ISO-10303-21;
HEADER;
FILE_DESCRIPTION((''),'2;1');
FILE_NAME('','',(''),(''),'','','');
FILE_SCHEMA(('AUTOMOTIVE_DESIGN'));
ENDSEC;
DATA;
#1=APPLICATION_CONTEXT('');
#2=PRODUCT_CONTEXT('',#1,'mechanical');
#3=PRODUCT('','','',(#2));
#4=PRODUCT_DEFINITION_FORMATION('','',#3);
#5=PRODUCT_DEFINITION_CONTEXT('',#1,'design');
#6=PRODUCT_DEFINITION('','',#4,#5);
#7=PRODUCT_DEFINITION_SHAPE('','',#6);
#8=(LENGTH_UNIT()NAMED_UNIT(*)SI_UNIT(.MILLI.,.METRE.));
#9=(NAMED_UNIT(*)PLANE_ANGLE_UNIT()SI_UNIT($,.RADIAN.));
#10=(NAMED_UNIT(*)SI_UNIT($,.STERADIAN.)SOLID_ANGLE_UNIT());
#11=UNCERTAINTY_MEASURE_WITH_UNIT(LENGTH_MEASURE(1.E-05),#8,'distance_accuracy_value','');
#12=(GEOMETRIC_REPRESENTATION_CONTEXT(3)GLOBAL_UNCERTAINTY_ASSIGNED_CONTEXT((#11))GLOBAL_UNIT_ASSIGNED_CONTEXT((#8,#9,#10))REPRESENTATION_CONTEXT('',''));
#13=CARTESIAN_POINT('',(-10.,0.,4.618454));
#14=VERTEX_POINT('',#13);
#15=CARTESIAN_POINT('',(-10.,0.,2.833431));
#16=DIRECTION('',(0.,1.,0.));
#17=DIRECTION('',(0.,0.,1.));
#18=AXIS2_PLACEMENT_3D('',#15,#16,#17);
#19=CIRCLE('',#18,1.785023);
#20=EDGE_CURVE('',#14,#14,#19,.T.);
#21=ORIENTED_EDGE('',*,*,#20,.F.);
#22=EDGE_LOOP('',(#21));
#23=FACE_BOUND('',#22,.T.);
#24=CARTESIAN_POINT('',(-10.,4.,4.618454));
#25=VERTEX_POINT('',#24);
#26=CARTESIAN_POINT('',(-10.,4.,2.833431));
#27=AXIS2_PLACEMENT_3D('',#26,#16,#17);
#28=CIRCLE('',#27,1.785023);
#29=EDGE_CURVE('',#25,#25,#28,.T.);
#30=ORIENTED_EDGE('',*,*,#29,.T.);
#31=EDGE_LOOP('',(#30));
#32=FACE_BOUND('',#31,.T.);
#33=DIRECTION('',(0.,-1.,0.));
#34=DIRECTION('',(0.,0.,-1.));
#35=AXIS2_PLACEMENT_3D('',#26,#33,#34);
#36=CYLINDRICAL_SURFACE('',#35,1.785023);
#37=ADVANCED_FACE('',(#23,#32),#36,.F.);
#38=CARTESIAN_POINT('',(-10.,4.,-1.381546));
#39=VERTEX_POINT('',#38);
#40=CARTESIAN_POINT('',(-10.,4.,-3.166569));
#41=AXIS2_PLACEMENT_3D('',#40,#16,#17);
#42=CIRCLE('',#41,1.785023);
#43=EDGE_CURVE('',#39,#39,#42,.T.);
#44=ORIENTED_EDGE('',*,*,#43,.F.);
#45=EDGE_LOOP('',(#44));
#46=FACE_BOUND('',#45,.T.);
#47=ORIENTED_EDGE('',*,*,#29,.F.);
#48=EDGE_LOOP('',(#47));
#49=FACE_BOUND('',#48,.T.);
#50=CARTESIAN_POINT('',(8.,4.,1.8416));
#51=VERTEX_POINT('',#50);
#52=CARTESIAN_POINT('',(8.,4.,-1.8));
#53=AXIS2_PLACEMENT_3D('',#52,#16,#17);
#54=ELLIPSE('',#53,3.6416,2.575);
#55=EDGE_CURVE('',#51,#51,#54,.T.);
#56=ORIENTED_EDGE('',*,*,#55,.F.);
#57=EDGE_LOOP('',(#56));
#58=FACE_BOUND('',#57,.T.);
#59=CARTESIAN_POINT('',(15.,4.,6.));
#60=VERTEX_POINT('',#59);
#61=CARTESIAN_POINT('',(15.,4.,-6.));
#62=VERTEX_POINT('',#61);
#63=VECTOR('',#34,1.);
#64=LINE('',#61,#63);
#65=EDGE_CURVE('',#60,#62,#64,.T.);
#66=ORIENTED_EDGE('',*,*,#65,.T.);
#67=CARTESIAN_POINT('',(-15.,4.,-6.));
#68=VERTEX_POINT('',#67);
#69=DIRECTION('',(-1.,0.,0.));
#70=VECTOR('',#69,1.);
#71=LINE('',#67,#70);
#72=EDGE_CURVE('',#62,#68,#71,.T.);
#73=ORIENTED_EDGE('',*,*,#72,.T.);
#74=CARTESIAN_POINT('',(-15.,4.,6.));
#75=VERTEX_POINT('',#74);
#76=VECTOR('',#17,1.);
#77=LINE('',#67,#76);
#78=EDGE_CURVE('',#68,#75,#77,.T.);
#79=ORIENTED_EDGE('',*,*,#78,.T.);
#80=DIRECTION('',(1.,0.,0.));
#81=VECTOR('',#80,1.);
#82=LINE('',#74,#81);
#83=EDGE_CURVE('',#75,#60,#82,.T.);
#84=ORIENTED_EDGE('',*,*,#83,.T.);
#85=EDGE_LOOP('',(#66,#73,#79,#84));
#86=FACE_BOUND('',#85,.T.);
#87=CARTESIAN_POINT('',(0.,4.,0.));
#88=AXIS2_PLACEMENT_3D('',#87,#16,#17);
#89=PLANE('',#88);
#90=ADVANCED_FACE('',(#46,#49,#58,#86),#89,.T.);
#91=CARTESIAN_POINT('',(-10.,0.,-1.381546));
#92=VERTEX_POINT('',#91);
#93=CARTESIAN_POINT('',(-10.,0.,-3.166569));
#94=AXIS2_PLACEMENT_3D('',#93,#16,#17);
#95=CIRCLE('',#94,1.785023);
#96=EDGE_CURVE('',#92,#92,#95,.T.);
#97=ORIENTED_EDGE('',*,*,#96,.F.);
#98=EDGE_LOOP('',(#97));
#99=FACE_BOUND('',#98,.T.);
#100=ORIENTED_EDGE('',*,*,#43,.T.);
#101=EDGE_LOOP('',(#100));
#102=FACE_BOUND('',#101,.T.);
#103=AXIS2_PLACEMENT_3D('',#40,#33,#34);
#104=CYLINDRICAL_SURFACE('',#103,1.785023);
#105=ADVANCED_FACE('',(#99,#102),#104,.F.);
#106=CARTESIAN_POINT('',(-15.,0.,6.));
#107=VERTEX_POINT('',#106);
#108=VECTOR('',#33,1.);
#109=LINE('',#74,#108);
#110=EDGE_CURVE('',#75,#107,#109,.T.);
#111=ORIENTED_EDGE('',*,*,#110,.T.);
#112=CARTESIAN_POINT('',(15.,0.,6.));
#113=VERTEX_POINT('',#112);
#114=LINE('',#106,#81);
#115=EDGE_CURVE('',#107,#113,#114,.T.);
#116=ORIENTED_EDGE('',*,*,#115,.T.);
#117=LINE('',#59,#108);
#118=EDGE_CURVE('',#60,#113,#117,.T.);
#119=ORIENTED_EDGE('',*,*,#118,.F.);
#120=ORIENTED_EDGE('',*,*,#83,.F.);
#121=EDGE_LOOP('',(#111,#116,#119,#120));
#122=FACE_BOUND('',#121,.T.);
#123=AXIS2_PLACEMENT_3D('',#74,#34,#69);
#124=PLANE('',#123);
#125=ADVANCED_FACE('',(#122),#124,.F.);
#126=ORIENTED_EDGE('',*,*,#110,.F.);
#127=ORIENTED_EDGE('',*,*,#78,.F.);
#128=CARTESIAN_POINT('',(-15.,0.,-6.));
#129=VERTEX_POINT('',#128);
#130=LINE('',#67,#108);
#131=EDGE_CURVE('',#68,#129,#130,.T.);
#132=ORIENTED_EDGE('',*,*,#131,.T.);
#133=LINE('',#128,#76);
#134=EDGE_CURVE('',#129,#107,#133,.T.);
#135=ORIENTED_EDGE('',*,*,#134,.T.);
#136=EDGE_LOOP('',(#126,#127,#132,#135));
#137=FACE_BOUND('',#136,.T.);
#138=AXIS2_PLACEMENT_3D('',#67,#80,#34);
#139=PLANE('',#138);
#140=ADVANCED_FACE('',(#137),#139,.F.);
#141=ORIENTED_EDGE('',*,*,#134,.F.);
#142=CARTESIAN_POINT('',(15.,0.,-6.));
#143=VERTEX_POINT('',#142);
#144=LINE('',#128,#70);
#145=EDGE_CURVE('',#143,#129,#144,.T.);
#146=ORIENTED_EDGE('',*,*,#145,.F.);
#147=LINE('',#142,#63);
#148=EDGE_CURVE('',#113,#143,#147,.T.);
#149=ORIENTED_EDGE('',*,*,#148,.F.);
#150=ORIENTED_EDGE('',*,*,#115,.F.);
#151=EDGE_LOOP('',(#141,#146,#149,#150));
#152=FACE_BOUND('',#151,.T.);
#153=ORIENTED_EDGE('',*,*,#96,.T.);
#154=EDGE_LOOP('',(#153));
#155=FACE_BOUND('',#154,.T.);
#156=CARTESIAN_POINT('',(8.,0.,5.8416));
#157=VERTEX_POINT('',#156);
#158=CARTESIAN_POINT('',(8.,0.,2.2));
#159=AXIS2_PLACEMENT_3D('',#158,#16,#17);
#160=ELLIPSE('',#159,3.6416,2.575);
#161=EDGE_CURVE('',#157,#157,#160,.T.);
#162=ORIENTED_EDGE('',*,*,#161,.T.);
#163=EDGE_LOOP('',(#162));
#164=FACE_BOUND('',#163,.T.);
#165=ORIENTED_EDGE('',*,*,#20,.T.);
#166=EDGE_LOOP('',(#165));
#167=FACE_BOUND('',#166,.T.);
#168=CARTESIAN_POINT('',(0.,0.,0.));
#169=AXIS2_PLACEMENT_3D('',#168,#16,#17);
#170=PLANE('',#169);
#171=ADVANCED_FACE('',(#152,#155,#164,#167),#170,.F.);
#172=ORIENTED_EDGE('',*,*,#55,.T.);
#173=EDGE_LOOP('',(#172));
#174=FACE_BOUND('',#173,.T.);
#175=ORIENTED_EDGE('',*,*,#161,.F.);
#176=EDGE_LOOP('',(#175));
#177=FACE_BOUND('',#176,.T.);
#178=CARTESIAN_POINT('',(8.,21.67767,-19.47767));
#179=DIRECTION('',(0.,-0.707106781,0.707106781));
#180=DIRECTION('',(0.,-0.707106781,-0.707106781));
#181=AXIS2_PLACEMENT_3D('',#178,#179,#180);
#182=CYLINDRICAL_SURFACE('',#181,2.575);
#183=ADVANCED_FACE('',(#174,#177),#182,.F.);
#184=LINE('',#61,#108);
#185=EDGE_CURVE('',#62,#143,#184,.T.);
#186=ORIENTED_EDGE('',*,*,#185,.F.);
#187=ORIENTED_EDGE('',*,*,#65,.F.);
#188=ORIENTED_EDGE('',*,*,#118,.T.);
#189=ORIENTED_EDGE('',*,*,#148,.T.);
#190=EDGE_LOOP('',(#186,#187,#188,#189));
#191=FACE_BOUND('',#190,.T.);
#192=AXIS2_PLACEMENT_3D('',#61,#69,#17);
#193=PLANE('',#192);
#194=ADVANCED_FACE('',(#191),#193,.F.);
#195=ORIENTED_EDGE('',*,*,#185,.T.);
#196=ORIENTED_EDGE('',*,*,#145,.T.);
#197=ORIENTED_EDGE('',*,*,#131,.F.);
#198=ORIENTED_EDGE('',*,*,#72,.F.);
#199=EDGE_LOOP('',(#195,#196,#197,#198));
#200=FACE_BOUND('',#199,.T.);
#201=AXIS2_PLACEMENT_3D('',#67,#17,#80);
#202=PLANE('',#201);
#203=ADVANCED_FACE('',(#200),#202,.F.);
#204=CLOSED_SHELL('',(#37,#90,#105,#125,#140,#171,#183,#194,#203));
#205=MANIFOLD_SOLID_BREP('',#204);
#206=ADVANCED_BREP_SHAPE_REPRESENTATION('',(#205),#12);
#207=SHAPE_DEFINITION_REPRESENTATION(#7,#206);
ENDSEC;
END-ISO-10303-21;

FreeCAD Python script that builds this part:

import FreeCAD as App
import Part
import Sketcher
Q = App.Units.Quantity


def add_polygon(sketch, points):
    """Adds a closed chain of lines whose ends are joined by coincident constraints."""
    first, n = sketch.GeometryCount, len(points)
    for a, b in zip(points, points[1:] + points[:1]):
        sketch.addGeometry(Part.LineSegment(App.Vector(*a, 0), App.Vector(*b, 0)), False)
    for i in range(n):
        sketch.addConstraint(Sketcher.Constraint("Coincident", first + i, 2, first + (i + 1) % n, 1))

doc = App.newDocument("Part")
body = doc.addObject("PartDesign::Body", "Body")

sketch1 = doc.addObject("Sketcher::SketchObject", "Sketch")
body.addObject(sketch1)
sketch1.AttachmentSupport = (doc.XZ_Plane, [""])
sketch1.MapMode = "FlatFace"
add_polygon(sketch1, [(-15, -6), (-15, 6), (15, 6), (15, -6)])
sketch1.addGeometry(Part.Circle(App.Vector(-10, 2.833431, 0), App.Vector(0, 0, 1), 1.785023), False)
sketch1.addGeometry(Part.Circle(App.Vector(-10, -3.166569, 0), App.Vector(0, 0, 1), 1.785023), False)
sketch1.addConstraint(Sketcher.Constraint("Vertical", 0))
sketch1.addConstraint(Sketcher.Constraint("Horizontal", 1))
sketch1.addConstraint(Sketcher.Constraint("Vertical", 2))
sketch1.addConstraint(Sketcher.Constraint("Horizontal", 3))
sketch1.addConstraint(Sketcher.Constraint("Equal", 4, 5))
sketch1.addConstraint(Sketcher.Constraint("Symmetric", 0, 2, 2, 2, -1, 1))
sketch1.addConstraint(Sketcher.Constraint("Vertical", 4, 3, 5, 3))
sketch1.addConstraint(Sketcher.Constraint("DistanceX", 1, 1, 1, 2, Q("30 mm")))
sketch1.addConstraint(Sketcher.Constraint("DistanceY", 0, 1, 0, 2, Q("12 mm")))
sketch1.addConstraint(Sketcher.Constraint("DistanceX", 4, 3, -1, 1, Q("10 mm")))
sketch1.addConstraint(Sketcher.Constraint("DistanceY", 5, 3, 4, 3, Q("6 mm")))
sketch1.addConstraint(Sketcher.Constraint("Diameter", 4, Q("3.570047 mm")))
sketch1.addConstraint(Sketcher.Constraint("DistanceY", -1, 1, 4, 3, Q("2.833431 mm")))
pad1 = doc.addObject("PartDesign::Pad", "Pad")
body.addObject(pad1)
pad1.Profile = sketch1
pad1.Length = 4
pad1.Reversed = True

sketch2 = doc.addObject("Sketcher::SketchObject", "Sketch001")
body.addObject(sketch2)
sketch2.Placement = App.Placement(App.Vector(0, 2.9, -2.9), App.Rotation(App.Vector(1, 0, 0), App.Vector(0, 0.707106781, 0.707106781), App.Vector(0, -0.707106781, 0.707106781), "ZXY"))
sketch2.addGeometry(Part.Circle(App.Vector(8, 1.555635, 0), App.Vector(0, 0, 1), 2.575), False)
sketch2.addConstraint(Sketcher.Constraint("Diameter", 0, Q("5.15 mm")))
sketch2.addConstraint(Sketcher.Constraint("DistanceX", -1, 1, 0, 3, Q("8 mm")))
sketch2.addConstraint(Sketcher.Constraint("DistanceY", -1, 1, 0, 3, Q("1.555635 mm")))
pocket1 = doc.addObject("PartDesign::Pocket", "Pocket")
body.addObject(pocket1)
pocket1.Profile = sketch2
pocket1.Length = 50
pocket1.Midplane = True

doc.recompute()
